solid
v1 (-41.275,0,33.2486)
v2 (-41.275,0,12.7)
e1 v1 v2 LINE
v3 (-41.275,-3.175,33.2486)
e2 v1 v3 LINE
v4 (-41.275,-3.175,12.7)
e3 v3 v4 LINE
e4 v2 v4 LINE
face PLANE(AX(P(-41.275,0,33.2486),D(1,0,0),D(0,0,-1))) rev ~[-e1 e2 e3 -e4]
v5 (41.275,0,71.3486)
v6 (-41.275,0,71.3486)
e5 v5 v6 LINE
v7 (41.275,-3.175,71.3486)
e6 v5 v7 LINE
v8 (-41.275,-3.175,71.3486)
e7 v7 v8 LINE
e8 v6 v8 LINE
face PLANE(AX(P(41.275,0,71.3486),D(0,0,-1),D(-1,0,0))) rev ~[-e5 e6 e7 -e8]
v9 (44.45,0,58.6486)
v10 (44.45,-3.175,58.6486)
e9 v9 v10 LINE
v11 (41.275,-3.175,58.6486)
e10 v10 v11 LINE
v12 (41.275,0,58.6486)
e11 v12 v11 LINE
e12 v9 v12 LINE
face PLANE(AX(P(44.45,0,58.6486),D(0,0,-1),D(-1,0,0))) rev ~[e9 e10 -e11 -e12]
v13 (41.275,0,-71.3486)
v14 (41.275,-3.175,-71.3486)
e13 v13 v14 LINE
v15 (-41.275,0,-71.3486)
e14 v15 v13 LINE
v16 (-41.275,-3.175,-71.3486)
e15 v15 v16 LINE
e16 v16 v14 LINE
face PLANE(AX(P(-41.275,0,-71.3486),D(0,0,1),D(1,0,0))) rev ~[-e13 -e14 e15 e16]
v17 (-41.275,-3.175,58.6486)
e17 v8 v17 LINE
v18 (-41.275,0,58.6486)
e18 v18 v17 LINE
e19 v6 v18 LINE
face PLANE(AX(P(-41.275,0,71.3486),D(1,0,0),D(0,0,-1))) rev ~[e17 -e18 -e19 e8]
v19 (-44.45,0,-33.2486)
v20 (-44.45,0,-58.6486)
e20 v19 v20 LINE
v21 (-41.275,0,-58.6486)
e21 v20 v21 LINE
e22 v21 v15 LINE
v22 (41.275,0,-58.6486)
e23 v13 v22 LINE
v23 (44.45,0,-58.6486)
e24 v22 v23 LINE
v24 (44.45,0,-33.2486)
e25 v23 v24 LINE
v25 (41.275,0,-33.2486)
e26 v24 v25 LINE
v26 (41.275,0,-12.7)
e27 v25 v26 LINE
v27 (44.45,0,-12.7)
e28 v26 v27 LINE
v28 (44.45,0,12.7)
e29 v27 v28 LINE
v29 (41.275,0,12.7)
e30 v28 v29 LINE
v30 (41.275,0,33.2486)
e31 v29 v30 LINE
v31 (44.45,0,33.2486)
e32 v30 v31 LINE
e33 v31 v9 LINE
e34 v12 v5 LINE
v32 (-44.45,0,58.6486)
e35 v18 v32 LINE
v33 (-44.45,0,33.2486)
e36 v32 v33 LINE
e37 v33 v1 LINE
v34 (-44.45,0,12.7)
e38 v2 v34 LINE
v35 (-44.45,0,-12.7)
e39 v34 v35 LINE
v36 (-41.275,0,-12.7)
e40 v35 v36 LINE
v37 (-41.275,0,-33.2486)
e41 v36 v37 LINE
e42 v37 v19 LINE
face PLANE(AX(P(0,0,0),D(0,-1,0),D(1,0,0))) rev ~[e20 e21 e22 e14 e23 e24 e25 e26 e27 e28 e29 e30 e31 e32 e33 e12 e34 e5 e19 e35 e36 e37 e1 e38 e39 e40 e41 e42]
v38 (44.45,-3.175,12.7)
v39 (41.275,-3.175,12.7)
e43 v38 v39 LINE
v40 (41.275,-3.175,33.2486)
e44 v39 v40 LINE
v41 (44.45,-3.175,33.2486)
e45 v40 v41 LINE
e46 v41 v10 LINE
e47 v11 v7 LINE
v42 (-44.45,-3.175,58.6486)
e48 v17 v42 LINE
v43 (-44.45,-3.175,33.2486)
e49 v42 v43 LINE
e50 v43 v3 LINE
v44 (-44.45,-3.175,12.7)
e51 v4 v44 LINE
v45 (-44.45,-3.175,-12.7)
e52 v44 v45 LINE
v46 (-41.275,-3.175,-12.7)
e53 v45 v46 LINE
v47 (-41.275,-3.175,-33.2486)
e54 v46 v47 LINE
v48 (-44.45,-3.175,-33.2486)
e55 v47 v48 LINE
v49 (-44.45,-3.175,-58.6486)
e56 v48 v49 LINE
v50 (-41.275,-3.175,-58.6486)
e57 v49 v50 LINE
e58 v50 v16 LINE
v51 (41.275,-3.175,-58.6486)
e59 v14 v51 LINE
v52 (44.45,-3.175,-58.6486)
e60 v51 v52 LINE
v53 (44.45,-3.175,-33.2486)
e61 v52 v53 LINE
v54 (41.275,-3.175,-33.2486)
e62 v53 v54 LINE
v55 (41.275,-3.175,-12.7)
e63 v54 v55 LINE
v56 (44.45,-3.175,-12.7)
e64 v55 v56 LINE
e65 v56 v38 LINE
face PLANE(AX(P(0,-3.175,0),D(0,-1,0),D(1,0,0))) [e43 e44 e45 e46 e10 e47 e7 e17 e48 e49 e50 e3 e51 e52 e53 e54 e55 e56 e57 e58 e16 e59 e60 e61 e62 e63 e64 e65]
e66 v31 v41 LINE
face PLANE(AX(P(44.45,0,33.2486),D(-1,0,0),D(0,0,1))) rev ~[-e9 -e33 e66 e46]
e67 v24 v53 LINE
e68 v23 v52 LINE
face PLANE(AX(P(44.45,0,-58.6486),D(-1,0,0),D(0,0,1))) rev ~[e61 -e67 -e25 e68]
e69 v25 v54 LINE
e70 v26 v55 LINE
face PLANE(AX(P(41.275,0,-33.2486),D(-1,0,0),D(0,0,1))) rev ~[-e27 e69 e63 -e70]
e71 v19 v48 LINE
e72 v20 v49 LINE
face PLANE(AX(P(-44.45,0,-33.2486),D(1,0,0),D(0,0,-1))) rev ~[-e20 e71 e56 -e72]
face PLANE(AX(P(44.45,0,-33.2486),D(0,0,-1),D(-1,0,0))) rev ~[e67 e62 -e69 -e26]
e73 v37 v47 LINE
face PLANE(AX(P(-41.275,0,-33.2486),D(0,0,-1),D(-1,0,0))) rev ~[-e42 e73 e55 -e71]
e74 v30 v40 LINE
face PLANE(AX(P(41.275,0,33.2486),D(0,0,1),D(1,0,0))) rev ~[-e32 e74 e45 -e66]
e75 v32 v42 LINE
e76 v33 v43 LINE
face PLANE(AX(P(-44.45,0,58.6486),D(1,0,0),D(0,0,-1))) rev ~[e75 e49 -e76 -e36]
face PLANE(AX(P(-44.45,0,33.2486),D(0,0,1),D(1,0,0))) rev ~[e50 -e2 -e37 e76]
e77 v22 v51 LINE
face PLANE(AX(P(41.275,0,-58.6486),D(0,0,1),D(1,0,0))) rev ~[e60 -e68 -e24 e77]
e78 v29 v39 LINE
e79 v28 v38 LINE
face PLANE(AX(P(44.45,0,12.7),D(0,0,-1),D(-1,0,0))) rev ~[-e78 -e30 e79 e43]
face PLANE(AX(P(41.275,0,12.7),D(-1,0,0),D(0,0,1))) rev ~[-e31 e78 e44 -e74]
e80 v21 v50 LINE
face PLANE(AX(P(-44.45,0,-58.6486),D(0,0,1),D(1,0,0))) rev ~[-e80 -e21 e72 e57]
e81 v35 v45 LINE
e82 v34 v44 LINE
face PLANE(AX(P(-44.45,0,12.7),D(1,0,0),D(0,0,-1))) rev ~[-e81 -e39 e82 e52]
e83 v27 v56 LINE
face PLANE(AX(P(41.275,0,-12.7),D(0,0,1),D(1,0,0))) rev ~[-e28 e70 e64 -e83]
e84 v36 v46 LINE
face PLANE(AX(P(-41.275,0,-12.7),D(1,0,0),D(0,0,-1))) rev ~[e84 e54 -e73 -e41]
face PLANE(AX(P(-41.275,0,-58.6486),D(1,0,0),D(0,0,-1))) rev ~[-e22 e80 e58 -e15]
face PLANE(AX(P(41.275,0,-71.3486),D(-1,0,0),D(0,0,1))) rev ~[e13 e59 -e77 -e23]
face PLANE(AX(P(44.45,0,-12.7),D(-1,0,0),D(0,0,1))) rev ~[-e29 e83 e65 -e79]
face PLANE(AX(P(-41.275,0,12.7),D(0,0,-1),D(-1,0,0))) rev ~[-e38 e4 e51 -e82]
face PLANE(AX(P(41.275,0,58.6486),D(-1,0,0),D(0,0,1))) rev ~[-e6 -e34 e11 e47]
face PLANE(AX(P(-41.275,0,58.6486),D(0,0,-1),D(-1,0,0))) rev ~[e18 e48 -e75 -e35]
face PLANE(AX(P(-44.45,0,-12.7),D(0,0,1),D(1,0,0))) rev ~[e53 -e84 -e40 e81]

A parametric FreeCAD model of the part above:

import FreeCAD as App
import Part
import Sketcher
Q = App.Units.Quantity


def add_polygon(sketch, points):
    """Adds a closed chain of lines whose ends are joined by coincident constraints."""
    first, n = sketch.GeometryCount, len(points)
    for a, b in zip(points, points[1:] + points[:1]):
        sketch.addGeometry(Part.LineSegment(App.Vector(*a, 0), App.Vector(*b, 0)), False)
    for i in range(n):
        sketch.addConstraint(Sketcher.Constraint("Coincident", first + i, 2, first + (i + 1) % n, 1))

doc = App.newDocument("Part")
body = doc.addObject("PartDesign::Body", "Body")

sketch1 = body.newObject("Sketcher::SketchObject", "Sketch")
sketch1.AttachmentSupport = (doc.getObject("XZ_Plane"), [""])
sketch1.MapMode = "FlatFace"
add_polygon(sketch1, [(-41.3, -71.3), (41.3, -71.3), (41.3, -58.6), (44.5, -58.6), (44.5, -33.2), (41.3, -33.2), (41.3, -12.7), (44.5, -12.7), (44.5, 12.7), (41.3, 12.7), (41.3, 33.2), (44.5, 33.2), (44.5, 58.6), (41.3, 58.6), (41.3, 71.3), (-41.3, 71.3), (-41.3, 58.6), (-44.5, 58.6), (-44.5, 33.2), (-41.3, 33.2), (-41.3, 12.7), (-44.5, 12.7), (-44.5, -12.7), (-41.3, -12.7), (-41.3, -33.2), (-44.5, -33.2), (-44.5, -58.6), (-41.3, -58.6)])
sketch1.addConstraint([
    Sketcher.Constraint("Horizontal", 0),
    Sketcher.Constraint("Vertical", 1),
    Sketcher.Constraint("Horizontal", 2),
    Sketcher.Constraint("Vertical", 3),
    Sketcher.Constraint("Horizontal", 4),
    Sketcher.Constraint("Vertical", 5),
    Sketcher.Constraint("Horizontal", 6),
    Sketcher.Constraint("Vertical", 7),
    Sketcher.Constraint("Horizontal", 8),
    Sketcher.Constraint("Vertical", 9),
    Sketcher.Constraint("Horizontal", 10),
    Sketcher.Constraint("Vertical", 11),
    Sketcher.Constraint("Horizontal", 12),
    Sketcher.Constraint("Vertical", 13),
    Sketcher.Constraint("Horizontal", 14),
    Sketcher.Constraint("Vertical", 15),
    Sketcher.Constraint("Horizontal", 16),
    Sketcher.Constraint("Vertical", 17),
    Sketcher.Constraint("Horizontal", 18),
    Sketcher.Constraint("Vertical", 19),
    Sketcher.Constraint("Horizontal", 20),
    Sketcher.Constraint("Vertical", 21),
    Sketcher.Constraint("Horizontal", 22),
    Sketcher.Constraint("Vertical", 23),
    Sketcher.Constraint("Horizontal", 24),
    Sketcher.Constraint("Vertical", 25),
    Sketcher.Constraint("Horizontal", 26),
    Sketcher.Constraint("Vertical", 27),
    Sketcher.Constraint("Symmetric", 0, 2, 14, 2, -1, 1),
    Sketcher.Constraint("Symmetric", 2, 2, 16, 2, -1, 1),
    Sketcher.Constraint("Symmetric", 4, 2, 18, 2, -1, 1),
    Sketcher.Constraint("Symmetric", 6, 2, 20, 2, -1, 1),
    Sketcher.Constraint("Symmetric", 8, 2, 22, 2, -1, 1),
    Sketcher.Constraint("Symmetric", 10, 2, 24, 2, -1, 1),
    Sketcher.Constraint("Symmetric", 12, 2, 26, 2, -1, 1),
    Sketcher.Constraint("Symmetric", 12, 2, 15, 2, -2),
    Sketcher.Constraint("Symmetric", 10, 2, 17, 2, -2),
    Sketcher.Constraint("Symmetric", 8, 2, 19, 2, -2),
    Sketcher.Constraint("Vertical", 1, 2, 4, 2),
    Sketcher.Constraint("Vertical", 3, 2, 6, 2),
    Sketcher.Constraint("Equal", 3, 7),
    Sketcher.Constraint("DistanceY", 3, 1, 3, 2, Q("1 in")),
    Sketcher.Constraint("DistanceY", 1, 1, 1, 2, Q("0.5 in")),
    Sketcher.Constraint("DistanceX", 0, 1, 0, 2, Q("3.25 in")),
    Sketcher.Constraint("DistanceX", 16, 2, 11, 2, Q("3.5 in")),
    Sketcher.Constraint("DistanceY", 5, 1, 5, 2, Q("0.809 in")),
])
pad1 = body.newObject("PartDesign::Pad", "Pad")
pad1.Profile = sketch1
pad1.Length = Q("0.125 in")

doc.recompute()
